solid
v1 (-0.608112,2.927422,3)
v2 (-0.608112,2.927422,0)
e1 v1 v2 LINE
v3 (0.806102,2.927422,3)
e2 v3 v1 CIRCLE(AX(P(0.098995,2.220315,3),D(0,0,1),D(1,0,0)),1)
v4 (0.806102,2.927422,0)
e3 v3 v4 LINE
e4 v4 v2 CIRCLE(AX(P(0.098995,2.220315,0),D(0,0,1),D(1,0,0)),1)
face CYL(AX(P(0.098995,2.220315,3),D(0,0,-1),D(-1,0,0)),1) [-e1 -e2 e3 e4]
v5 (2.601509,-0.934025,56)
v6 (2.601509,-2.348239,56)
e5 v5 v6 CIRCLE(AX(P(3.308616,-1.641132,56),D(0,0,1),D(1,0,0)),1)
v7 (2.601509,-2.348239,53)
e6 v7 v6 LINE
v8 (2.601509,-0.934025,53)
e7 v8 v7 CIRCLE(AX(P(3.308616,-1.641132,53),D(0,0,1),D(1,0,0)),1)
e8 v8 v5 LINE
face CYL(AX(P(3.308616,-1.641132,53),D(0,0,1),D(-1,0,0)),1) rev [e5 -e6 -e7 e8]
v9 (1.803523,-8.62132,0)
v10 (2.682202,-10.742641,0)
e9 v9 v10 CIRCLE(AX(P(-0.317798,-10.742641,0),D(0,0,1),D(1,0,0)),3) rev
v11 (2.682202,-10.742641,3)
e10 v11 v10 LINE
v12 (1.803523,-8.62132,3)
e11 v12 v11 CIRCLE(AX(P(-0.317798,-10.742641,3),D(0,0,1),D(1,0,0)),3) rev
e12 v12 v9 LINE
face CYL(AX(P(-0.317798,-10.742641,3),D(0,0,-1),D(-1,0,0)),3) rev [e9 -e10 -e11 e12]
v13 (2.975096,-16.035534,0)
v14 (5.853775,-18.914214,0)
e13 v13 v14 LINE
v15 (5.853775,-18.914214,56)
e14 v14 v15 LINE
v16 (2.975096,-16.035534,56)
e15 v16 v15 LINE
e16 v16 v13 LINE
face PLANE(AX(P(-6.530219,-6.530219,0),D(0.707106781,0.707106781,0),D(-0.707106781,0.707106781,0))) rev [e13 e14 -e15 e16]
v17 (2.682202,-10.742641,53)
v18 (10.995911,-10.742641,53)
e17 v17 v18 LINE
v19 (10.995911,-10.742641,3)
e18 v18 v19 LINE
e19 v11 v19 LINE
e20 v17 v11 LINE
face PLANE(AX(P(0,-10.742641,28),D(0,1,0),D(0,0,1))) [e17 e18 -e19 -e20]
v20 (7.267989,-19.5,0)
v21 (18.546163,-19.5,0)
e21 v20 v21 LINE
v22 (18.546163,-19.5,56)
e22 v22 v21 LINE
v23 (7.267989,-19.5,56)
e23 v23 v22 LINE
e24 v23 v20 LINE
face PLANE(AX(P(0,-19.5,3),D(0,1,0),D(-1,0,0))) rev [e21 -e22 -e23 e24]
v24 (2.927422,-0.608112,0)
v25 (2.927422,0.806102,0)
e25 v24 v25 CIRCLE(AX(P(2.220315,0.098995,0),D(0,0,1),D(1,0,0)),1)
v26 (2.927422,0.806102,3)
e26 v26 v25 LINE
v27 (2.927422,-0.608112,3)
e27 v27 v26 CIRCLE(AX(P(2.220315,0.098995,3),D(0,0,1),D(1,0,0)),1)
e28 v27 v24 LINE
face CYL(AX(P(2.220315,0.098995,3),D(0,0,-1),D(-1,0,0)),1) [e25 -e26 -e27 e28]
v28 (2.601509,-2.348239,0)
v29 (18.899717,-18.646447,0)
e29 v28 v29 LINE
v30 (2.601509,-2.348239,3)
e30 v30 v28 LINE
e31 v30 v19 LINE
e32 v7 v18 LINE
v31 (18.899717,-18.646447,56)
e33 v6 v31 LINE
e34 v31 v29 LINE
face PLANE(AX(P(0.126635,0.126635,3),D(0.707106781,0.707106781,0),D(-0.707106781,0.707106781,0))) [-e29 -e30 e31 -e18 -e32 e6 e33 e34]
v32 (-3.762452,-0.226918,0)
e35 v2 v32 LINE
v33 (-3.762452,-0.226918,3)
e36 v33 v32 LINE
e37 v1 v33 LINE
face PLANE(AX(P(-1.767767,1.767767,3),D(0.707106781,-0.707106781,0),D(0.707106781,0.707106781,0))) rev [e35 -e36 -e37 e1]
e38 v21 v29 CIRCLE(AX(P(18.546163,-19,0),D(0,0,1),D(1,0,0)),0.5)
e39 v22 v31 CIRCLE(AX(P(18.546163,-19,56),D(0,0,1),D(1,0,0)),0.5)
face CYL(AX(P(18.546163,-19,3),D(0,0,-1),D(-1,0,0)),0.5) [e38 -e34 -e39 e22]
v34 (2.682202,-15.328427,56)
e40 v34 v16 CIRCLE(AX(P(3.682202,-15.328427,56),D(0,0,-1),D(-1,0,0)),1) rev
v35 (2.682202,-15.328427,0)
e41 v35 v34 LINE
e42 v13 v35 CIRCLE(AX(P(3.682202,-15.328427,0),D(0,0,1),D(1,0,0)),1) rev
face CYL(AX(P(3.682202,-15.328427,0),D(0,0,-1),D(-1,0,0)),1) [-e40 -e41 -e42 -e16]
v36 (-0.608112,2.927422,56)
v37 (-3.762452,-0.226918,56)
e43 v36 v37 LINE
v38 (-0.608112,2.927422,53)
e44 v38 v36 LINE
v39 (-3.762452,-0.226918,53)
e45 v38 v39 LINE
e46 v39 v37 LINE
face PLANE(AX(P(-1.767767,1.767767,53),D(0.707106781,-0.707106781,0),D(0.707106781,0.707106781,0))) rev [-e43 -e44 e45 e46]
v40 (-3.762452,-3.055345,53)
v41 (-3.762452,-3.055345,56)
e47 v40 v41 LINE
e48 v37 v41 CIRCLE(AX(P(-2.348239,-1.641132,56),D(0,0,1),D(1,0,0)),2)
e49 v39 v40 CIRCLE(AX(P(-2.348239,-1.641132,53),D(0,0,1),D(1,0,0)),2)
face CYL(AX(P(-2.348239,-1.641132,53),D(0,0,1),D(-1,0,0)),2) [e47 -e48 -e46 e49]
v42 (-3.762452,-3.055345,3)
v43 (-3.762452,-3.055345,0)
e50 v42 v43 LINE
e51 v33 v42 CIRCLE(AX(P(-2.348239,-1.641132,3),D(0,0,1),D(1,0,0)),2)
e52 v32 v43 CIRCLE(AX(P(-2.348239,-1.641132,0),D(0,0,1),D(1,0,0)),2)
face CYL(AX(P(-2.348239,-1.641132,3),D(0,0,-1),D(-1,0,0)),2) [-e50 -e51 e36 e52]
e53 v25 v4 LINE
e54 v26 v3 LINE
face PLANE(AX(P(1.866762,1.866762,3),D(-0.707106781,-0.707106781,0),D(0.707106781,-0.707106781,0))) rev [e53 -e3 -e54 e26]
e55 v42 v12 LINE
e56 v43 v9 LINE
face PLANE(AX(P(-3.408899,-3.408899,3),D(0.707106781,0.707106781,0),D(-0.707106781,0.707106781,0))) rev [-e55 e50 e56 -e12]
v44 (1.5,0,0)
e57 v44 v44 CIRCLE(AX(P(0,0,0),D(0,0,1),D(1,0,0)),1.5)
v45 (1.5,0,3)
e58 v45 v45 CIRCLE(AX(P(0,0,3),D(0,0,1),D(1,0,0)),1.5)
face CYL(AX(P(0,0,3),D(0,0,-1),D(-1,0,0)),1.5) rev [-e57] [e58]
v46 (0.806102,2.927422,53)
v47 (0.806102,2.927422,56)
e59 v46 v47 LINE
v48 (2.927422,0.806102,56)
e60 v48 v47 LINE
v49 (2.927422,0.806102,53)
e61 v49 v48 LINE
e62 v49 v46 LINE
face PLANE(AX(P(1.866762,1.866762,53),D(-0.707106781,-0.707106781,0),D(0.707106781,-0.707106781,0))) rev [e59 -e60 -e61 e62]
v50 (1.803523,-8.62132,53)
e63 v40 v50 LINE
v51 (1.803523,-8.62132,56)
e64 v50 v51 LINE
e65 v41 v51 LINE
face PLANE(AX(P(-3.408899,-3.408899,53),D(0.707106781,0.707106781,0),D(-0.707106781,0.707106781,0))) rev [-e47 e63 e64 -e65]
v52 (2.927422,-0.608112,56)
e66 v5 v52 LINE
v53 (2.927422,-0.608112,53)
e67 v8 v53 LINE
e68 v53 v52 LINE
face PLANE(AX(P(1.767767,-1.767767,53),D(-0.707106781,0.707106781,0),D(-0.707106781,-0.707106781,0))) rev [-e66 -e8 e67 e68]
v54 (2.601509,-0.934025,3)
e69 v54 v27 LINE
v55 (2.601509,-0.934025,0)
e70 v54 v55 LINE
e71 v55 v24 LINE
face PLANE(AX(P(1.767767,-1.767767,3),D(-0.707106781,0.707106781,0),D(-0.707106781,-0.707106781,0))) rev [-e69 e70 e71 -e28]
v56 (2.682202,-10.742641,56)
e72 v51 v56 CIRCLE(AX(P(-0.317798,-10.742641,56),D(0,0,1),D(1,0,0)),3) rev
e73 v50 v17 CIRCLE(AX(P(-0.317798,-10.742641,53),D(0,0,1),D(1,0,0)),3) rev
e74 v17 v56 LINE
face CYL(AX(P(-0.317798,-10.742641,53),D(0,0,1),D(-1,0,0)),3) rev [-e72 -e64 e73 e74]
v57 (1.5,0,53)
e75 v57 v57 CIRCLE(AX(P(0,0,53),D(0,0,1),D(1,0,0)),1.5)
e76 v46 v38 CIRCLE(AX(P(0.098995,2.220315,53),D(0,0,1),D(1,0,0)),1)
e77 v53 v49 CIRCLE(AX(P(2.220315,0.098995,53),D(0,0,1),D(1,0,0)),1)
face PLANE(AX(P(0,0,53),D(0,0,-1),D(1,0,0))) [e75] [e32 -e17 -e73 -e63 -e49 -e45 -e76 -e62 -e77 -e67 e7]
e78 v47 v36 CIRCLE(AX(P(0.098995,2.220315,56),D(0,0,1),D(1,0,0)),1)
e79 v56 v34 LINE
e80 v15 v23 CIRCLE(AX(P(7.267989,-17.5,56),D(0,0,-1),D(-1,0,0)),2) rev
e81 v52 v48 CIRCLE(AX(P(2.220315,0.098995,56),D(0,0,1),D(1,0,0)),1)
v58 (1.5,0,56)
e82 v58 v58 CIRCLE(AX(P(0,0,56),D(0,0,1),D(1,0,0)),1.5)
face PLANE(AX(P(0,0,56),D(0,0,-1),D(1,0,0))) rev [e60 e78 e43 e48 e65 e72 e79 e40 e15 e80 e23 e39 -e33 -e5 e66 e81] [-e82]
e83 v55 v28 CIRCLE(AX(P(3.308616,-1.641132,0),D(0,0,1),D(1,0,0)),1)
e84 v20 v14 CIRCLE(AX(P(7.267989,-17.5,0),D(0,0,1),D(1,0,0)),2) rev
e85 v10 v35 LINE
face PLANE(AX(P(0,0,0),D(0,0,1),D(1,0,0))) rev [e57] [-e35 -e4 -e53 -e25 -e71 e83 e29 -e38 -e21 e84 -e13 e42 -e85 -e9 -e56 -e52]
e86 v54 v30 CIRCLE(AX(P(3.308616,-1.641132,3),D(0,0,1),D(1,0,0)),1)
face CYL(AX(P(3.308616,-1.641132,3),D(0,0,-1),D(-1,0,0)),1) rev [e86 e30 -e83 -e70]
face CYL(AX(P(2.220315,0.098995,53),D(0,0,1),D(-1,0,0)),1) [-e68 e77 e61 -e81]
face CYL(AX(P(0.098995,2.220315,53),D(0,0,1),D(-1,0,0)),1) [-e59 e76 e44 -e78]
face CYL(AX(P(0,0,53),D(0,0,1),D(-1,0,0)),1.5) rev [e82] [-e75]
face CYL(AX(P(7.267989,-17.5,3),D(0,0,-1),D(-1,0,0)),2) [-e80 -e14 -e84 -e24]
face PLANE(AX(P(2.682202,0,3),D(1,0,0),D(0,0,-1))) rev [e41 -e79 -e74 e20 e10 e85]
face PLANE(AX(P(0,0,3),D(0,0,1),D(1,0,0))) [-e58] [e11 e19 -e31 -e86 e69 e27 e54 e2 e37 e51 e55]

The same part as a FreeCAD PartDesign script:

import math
import FreeCAD as App
import Part
import Sketcher
from FreeCAD import Vector
Q = App.Units.Quantity


def edges_at(feature, points):
    """Names of the edges that pass closest to the given points."""
    edges = feature.Shape.Edges
    near = lambda p: min(range(len(edges)), key=lambda i: edges[i].distToShape(Part.Vertex(*p))[0])
    return sorted({f"Edge{near(p) + 1}" for p in points})


def add_polygon(sketch, points):
    """Adds a closed chain of lines whose ends are joined by coincident constraints."""
    first, n = sketch.GeometryCount, len(points)
    for a, b in zip(points, points[1:] + points[:1]):
        sketch.addGeometry(Part.LineSegment(App.Vector(*a, 0), App.Vector(*b, 0)), False)
    for i in range(n):
        sketch.addConstraint(Sketcher.Constraint("Coincident", first + i, 2, first + (i + 1) % n, 1))

doc = App.newDocument("Part")
body = doc.addObject("PartDesign::Body", "Body")

# Sketch on XY plane
sketch1 = doc.addObject("Sketcher::SketchObject", "Sketch")
body.addObject(sketch1)
sketch1.AttachmentSupport = (doc.XY_Plane, [""])
sketch1.MapMode = "FlatFace"
sketch1.addGeometry([
    Part.LineSegment(Vector(-3.76, -3.06, 0), Vector(1.8, -8.62, 0)),  # 0
    Part.ArcOfCircle(Part.Circle(Vector(-0.32, -10.74, 0), Vector(0, 0, 1), 3), math.radians(0), math.radians(45)),  # 1
    Part.LineSegment(Vector(2.68, -10.74, 0), Vector(2.68, -18.5, 0)),  # 2
    Part.ArcOfCircle(Part.Circle(Vector(3.68, -18.5, 0), Vector(0, 0, 1), 1), math.radians(-180), math.radians(-90)),  # 3
    Part.LineSegment(Vector(3.68, -19.5, 0), Vector(18.55, -19.5, 0)),  # 4
    Part.ArcOfCircle(Part.Circle(Vector(18.55, -19, 0), Vector(0, 0, 1), 0.5), math.radians(-90), math.radians(45)),  # 5
    Part.LineSegment(Vector(18.9, -18.65, 0), Vector(2.6, -2.35, 0)),  # 6
    Part.ArcOfCircle(Part.Circle(Vector(3.31, -1.64, 0), Vector(0, 0, 1), 1), math.radians(135), math.radians(225)),  # 7
    Part.LineSegment(Vector(2.6, -0.93, 0), Vector(2.93, -0.61, 0)),  # 8
    Part.ArcOfCircle(Part.Circle(Vector(2.22, 0.1, 0), Vector(0, 0, 1), 1), math.radians(-45), math.radians(45)),  # 9
    Part.LineSegment(Vector(2.93, 0.81, 0), Vector(0.81, 2.93, 0)),  # 10
    Part.ArcOfCircle(Part.Circle(Vector(0.1, 2.22, 0), Vector(0, 0, 1), 1), math.radians(45), math.radians(135)),  # 11
    Part.LineSegment(Vector(-0.61, 2.93, 0), Vector(-3.76, -0.23, 0)),  # 12
    Part.ArcOfCircle(Part.Circle(Vector(-2.35, -1.64, 0), Vector(0, 0, 1), 2), math.radians(135), math.radians(225)),  # 13
    Part.Circle(Vector(0, 0, 0), Vector(0, 0, 1), 1.5),  # 14
], False)
sketch1.addConstraint([
    Sketcher.Constraint("Tangent", 0, 2, 1, 2),
    Sketcher.Constraint("Tangent", 1, 1, 2, 1),
    Sketcher.Constraint("Tangent", 2, 2, 3, 1),
    Sketcher.Constraint("Tangent", 3, 2, 4, 1),
    Sketcher.Constraint("Tangent", 4, 2, 5, 1),
    Sketcher.Constraint("Tangent", 5, 2, 6, 1),
    Sketcher.Constraint("Tangent", 6, 2, 7, 2),
    Sketcher.Constraint("Tangent", 7, 1, 8, 1),
    Sketcher.Constraint("Tangent", 8, 2, 9, 1),
    Sketcher.Constraint("Tangent", 9, 2, 10, 1),
    Sketcher.Constraint("Tangent", 10, 2, 11, 1),
    Sketcher.Constraint("Tangent", 11, 2, 12, 1),
    Sketcher.Constraint("Tangent", 12, 2, 13, 1),
    Sketcher.Constraint("Tangent", 13, 2, 0, 1),
    Sketcher.Constraint("Vertical", 2),
    Sketcher.Constraint("Horizontal", 4),
    Sketcher.Constraint("Coincident", 14, 3, -1, 1),
    Sketcher.Constraint("Equal", 3, 7),
    Sketcher.Constraint("Equal", 7, 9),
    Sketcher.Constraint("Equal", 9, 11),
    Sketcher.Constraint("Parallel", 0, 6),
    Sketcher.Constraint("Perpendicular", 6, 8),
    Sketcher.Constraint("Perpendicular", 8, 10),
    Sketcher.Constraint("Perpendicular", 10, 12),
    Sketcher.Constraint("Horizontal", 7, 3, 13, 3),
    Sketcher.Constraint("Horizontal", 10, 2, 11, 2),
    Sketcher.Constraint("Diameter", 14, 3.0),
    Sketcher.Constraint("Radius", 1, 3.0),
    Sketcher.Constraint("Radius", 3, 1.0),
    Sketcher.Constraint("Radius", 13, 2.0),
    Sketcher.Constraint("Radius", 5, 0.5),
    Sketcher.Constraint("Distance", 10, 3.0),
    Sketcher.Constraint("DistanceY", 5, 3, -1, 1, 19.0),
    Sketcher.Constraint("DistanceX", 4, 1, 4, 2, 14.863961),
    Sketcher.Constraint("DistanceY", -1, 1, 9, 2, 0.806102),
    Sketcher.Constraint("DistanceX", -1, 1, 10, 2, 0.806102),
    Sketcher.Constraint("DistanceX", 9, 3, 7, 3, 1.0883),
])
pad1 = doc.addObject("PartDesign::Pad", "Pad")
body.addObject(pad1)
pad1.Profile = sketch1
pad1.Length = 3

# Sketch on XY plane
sketch2 = doc.addObject("Sketcher::SketchObject", "Sketch001")
body.addObject(sketch2)
sketch2.AttachmentSupport = (doc.XY_Plane, [""])
sketch2.MapMode = "FlatFace"
sketch2.AttachmentOffset = App.Placement(Vector(0, 0, 3), App.Rotation())
sketch2.addGeometry([
    Part.LineSegment(Vector(18.9, -18.6, 0), Vector(11, -10.7, 0)),  # 0
    Part.LineSegment(Vector(11, -10.7, 0), Vector(2.7, -10.7, 0)),  # 1
    Part.LineSegment(Vector(2.7, -10.7, 0), Vector(2.7, -18.5, 0)),  # 2
    Part.ArcOfCircle(Part.Circle(Vector(3.7, -18.5, 0), Vector(0, 0, 1), 1), math.radians(-180), math.radians(-90)),  # 3
    Part.LineSegment(Vector(3.7, -19.5, 0), Vector(18.5, -19.5, 0)),  # 4
    Part.ArcOfCircle(Part.Circle(Vector(18.5, -19, 0), Vector(0, 0, 1), 0.5), math.radians(-90), math.radians(45)),  # 5
], False)
sketch2.addConstraint([
    Sketcher.Constraint("Coincident", 0, 2, 1, 1),
    Sketcher.Constraint("Coincident", 1, 2, 2, 1),
    Sketcher.Constraint("Tangent", 2, 2, 3, 1),
    Sketcher.Constraint("Tangent", 3, 2, 4, 1),
    Sketcher.Constraint("Tangent", 4, 2, 5, 1),
    Sketcher.Constraint("Tangent", 5, 2, 0, 1),
    Sketcher.Constraint("Horizontal", 1),
    Sketcher.Constraint("Vertical", 2),
    Sketcher.Constraint("Horizontal", 4),
    Sketcher.Constraint("Radius", 3, 1.0),
    Sketcher.Constraint("Radius", 5, 0.5),
    Sketcher.Constraint("Angle", 0, Q("135 deg")),
    Sketcher.Constraint("DistanceY", 5, 3, -1, 1, 19.0),
    Sketcher.Constraint("DistanceX", 1, 2, 1, 1, 8.313708),
    Sketcher.Constraint("DistanceX", 4, 1, 4, 2, 14.863961),
    Sketcher.Constraint("DistanceX", -1, 1, 0, 2, 10.995911),
])
pad2 = doc.addObject("PartDesign::Pad", "Pad001")
body.addObject(pad2)
pad2.Profile = sketch2
pad2.Length = 25
doc.recompute()

datumplane = doc.addObject("PartDesign::Plane", "DatumPlane")
body.addObject(datumplane)
datumplane.AttachmentSupport = (doc.XY_Plane, [""])
datumplane.MapMode = "FlatFace"
datumplane.AttachmentOffset = App.Placement(Vector(0, 0, 28), App.Rotation())
mirrored = doc.addObject("PartDesign::Mirrored", "Mirrored")
body.addObject(mirrored)
mirrored.Originals = [pad1, pad2]
mirrored.MirrorPlane = (datumplane, [""])
body.Tip = mirrored

# Sketch on an angled plane
sketch3 = doc.addObject("Sketcher::SketchObject", "Sketch002")
body.addObject(sketch3)
sketch3.Placement = App.Placement(Vector(-6.530219, -6.530219, 0), App.Rotation(Vector(0, 0, 1), Vector(-0.707106781, 0.707106781, 0), Vector(-0.707106781, -0.707106781, 0), "ZXY"))
add_polygon(sketch3, [(0, -13), (0, -22), (56, -22), (56, -13)])  # lines 0-3
sketch3.addConstraint([
    Sketcher.Constraint("Vertical", 0),
    Sketcher.Constraint("Horizontal", 1),
    Sketcher.Constraint("Vertical", 2),
    Sketcher.Constraint("Horizontal", 3),
    Sketcher.Constraint("PointOnObject", 0, 2, -2),
    Sketcher.Constraint("DistanceX", 1, 1, 1, 2, 56.0),
    Sketcher.Constraint("DistanceY", 0, 2, 0, 1, 9.115473),
    Sketcher.Constraint("DistanceY", 2, 2, -1, 1, 13.028331),
])
pocket1 = doc.addObject("PartDesign::Pocket", "Pocket")
body.addObject(pocket1)
pocket1.Profile = sketch3
pocket1.Type = "ThroughAll"
pocket1.Reversed = True
doc.recompute()

fillet = doc.addObject("PartDesign::Fillet", "Fillet")
body.addObject(fillet)
fillet.Base = (pocket1, edges_at(pocket1, [(6.44, -19.5, 28)]))
fillet.Radius = 2
doc.recompute()

fillet2 = doc.addObject("PartDesign::Fillet", "Fillet001")
body.addObject(fillet2)
fillet2.Base = (fillet, edges_at(fillet, [(2.682, -15.743, 28)]))
fillet2.Radius = 1

doc.recompute()
